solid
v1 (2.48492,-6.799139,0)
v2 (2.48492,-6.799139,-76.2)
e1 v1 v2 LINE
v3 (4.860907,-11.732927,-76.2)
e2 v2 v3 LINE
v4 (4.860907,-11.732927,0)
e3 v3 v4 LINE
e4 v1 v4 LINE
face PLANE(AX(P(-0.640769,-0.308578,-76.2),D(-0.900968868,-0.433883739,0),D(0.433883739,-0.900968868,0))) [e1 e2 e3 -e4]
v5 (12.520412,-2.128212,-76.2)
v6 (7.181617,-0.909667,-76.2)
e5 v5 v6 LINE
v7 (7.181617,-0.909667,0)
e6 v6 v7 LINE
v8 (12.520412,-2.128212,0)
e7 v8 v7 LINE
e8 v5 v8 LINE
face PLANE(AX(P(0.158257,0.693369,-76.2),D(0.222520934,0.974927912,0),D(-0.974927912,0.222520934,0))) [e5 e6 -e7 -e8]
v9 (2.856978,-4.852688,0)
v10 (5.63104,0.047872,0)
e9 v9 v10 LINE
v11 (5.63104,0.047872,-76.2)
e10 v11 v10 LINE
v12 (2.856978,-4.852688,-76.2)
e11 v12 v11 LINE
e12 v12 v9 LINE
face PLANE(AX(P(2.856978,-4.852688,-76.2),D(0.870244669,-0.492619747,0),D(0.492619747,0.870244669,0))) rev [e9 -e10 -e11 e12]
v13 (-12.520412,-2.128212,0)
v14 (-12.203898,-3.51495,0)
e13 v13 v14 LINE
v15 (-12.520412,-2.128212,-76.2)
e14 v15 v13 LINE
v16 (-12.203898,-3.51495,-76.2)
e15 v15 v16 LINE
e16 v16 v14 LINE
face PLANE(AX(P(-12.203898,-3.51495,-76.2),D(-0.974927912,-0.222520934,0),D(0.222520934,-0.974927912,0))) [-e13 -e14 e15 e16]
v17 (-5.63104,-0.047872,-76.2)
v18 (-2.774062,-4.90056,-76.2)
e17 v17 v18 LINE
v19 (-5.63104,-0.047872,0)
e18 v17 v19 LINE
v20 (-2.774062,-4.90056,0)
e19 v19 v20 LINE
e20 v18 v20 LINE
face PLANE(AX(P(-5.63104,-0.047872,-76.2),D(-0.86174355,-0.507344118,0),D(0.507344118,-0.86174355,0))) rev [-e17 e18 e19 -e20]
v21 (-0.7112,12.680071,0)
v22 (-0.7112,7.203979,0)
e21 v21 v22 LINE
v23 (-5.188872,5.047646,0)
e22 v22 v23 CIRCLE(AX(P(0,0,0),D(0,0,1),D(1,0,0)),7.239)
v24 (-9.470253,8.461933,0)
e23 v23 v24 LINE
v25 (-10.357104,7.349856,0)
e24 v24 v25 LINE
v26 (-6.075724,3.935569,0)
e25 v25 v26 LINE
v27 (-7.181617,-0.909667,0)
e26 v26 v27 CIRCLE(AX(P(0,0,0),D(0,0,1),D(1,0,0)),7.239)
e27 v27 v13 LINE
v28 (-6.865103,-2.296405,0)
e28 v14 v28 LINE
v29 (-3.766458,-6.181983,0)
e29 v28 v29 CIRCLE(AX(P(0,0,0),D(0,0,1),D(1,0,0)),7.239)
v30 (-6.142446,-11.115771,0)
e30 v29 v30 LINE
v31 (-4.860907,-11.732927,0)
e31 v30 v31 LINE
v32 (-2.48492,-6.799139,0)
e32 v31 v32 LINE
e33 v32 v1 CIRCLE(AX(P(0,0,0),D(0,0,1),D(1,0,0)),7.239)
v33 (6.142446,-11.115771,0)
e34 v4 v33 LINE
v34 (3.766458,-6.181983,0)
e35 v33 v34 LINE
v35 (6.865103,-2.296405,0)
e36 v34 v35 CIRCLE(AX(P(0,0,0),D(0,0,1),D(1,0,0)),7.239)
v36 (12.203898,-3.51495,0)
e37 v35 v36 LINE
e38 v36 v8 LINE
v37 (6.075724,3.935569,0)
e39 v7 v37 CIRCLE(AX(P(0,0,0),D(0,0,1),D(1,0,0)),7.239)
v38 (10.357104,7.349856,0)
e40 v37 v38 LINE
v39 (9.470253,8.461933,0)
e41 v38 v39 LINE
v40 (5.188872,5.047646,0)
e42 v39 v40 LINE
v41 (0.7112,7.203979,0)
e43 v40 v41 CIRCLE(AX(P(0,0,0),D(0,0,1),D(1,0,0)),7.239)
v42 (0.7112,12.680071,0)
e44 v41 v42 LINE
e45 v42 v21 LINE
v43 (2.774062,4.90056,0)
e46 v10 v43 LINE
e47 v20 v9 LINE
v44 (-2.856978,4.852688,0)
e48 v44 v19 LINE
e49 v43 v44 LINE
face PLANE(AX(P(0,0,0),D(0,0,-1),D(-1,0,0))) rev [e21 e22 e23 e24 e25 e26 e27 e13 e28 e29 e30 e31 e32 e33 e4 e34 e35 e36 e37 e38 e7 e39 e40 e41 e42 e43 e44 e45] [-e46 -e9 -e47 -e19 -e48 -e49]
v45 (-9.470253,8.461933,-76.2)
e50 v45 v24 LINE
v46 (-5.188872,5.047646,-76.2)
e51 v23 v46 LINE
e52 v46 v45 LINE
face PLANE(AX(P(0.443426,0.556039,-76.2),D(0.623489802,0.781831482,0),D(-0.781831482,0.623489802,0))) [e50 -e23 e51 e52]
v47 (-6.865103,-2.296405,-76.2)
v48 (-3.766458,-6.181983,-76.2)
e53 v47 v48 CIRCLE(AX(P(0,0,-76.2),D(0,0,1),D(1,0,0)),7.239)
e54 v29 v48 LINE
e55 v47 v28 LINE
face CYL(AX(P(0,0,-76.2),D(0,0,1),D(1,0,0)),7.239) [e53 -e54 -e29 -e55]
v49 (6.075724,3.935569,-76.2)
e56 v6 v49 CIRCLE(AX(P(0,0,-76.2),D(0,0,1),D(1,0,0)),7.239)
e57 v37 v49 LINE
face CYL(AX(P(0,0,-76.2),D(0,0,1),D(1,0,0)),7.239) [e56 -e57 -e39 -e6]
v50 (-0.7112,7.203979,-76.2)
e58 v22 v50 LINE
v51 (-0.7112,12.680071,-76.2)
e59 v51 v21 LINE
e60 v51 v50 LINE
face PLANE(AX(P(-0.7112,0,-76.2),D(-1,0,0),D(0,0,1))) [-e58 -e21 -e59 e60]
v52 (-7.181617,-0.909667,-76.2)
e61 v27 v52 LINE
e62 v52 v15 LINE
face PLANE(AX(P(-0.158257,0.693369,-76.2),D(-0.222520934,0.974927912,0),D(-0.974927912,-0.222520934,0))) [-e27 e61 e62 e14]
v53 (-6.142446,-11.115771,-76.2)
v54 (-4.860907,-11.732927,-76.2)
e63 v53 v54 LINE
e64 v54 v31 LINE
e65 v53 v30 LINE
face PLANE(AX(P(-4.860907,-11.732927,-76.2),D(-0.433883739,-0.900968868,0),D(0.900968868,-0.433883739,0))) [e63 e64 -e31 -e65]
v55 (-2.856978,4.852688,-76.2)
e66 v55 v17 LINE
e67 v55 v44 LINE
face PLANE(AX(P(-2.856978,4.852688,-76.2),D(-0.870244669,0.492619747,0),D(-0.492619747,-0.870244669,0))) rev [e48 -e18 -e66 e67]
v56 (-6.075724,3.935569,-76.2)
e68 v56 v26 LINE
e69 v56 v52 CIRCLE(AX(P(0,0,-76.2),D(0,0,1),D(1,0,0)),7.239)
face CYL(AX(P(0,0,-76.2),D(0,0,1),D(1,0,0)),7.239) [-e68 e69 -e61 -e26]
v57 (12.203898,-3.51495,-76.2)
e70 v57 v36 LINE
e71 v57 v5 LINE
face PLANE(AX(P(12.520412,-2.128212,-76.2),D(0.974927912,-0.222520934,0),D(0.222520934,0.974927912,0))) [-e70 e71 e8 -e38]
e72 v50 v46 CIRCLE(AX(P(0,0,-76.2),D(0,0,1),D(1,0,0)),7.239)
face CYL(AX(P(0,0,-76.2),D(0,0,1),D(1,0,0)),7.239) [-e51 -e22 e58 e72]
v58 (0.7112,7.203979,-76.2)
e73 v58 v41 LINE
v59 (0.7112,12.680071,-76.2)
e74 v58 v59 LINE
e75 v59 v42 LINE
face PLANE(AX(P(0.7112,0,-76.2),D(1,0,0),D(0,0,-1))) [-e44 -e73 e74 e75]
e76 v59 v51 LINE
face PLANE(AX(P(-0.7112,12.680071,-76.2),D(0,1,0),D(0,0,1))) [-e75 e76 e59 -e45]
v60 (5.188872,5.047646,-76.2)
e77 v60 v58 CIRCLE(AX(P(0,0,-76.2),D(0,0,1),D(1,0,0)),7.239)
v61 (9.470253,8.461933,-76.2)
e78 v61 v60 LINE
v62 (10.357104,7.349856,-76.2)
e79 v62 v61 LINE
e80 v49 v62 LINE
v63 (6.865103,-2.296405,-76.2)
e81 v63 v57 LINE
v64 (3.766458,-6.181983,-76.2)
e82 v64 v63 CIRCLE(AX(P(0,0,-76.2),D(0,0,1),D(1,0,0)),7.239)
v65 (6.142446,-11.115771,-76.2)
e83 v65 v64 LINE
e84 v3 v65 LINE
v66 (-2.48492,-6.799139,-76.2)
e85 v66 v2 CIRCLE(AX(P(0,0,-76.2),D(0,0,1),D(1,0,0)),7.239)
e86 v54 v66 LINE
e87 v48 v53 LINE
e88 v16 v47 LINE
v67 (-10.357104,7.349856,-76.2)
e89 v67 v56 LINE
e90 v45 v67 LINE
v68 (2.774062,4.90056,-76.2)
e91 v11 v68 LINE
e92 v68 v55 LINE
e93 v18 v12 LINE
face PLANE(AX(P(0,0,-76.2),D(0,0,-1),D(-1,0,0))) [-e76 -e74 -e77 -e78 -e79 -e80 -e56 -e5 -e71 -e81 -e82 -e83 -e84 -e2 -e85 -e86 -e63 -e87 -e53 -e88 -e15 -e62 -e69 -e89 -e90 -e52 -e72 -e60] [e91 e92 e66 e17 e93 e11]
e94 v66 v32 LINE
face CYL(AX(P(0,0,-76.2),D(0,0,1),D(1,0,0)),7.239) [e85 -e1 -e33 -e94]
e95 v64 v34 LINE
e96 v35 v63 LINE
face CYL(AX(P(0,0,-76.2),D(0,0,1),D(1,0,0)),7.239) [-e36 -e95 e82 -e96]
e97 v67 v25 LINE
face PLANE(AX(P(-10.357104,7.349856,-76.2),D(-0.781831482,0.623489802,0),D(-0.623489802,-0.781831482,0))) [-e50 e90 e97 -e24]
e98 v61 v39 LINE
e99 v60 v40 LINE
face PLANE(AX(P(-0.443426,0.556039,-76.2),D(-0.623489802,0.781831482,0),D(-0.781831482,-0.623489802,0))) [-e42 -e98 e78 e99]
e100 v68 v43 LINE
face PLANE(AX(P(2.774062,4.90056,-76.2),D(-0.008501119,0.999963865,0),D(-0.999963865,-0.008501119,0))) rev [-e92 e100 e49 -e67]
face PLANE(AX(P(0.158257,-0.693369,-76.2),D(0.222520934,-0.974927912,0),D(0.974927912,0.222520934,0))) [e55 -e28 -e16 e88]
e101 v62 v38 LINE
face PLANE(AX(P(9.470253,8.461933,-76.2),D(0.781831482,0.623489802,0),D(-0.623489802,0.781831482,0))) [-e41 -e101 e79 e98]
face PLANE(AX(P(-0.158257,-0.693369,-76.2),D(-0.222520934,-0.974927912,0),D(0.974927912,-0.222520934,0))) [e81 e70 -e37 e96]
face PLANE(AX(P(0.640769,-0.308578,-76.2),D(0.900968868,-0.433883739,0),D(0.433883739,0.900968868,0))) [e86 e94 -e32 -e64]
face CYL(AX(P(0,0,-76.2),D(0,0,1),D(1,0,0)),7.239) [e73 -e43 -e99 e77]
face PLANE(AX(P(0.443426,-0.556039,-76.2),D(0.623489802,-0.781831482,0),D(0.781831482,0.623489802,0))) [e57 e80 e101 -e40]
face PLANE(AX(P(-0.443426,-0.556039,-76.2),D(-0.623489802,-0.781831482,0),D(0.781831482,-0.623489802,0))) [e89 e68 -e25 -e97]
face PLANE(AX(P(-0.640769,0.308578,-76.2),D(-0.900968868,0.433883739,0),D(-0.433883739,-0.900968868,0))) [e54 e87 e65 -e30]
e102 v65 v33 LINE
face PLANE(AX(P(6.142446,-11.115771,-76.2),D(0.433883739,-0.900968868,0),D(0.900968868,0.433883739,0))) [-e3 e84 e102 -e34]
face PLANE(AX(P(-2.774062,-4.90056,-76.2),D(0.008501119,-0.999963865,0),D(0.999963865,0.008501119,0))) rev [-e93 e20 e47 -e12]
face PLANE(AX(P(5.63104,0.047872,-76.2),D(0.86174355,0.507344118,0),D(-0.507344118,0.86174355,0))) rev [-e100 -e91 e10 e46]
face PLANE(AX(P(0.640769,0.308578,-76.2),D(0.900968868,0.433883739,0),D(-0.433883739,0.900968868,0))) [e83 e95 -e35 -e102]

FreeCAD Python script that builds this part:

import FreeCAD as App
import Part
import Sketcher

V = App.Vector
Q = App.Units.Quantity


def add_polygon(sketch, points):
    """Adds a closed chain of lines whose ends are joined by coincident constraints."""
    first, n = sketch.GeometryCount, len(points)
    for a, b in zip(points, points[1:] + points[:1]):
        sketch.addGeometry(Part.LineSegment(App.Vector(*a, 0), App.Vector(*b, 0)), False)
    for i in range(n):
        sketch.addConstraint(Sketcher.Constraint("Coincident", first + i, 2, first + (i + 1) % n, 1))

doc = App.newDocument("Part")
body = doc.addObject("PartDesign::Body", "Body")

sketch1 = body.newObject("Sketcher::SketchObject", "Sketch")
sketch1.AttachmentSupport = (doc.getObject("XY_Plane"), [""])
sketch1.MapMode = "FlatFace"
add_polygon(sketch1, [(0.7, 0), (0.7, 12.7), (-0.7, 12.7), (-0.7, 0)])
sketch1.addConstraint(Sketcher.Constraint("Vertical", 0))
sketch1.addConstraint(Sketcher.Constraint("Horizontal", 1))
sketch1.addConstraint(Sketcher.Constraint("Vertical", 2))
sketch1.addConstraint(Sketcher.Constraint("Horizontal", 3))
sketch1.addConstraint(Sketcher.Constraint("Symmetric", 2, 2, 3, 2, -1, 1))
sketch1.addConstraint(Sketcher.Constraint("DistanceX", 1, 2, 1, 1, Q("0.056 in")))
sketch1.addConstraint(Sketcher.Constraint("DistanceY", 0, 1, 0, 2, Q("12.680071 mm")))
pad1 = body.newObject("PartDesign::Pad", "Pad")
pad1.Profile = sketch1
pad1.Length = Q("3 in")
pad1.Reversed = True

sketch2 = body.newObject("Sketcher::SketchObject", "Sketch001")
sketch2.AttachmentSupport = (doc.getObject("XY_Plane"), [""])
sketch2.MapMode = "FlatFace"
sketch2.addGeometry(Part.Circle(V(0, 0, 0), V(0, 0, 1), 7), False)
sketch2.addConstraint(Sketcher.Constraint("Coincident", 0, 3, -1, 1))
sketch2.addConstraint(Sketcher.Constraint("Diameter", 0, Q("0.57 in")))
pad2 = body.newObject("PartDesign::Pad", "Pad001")
pad2.Profile = sketch2
pad2.Length = Q("3 in")
pad2.Reversed = True
doc.recompute()

polarpattern = body.newObject("PartDesign::PolarPattern", "PolarPattern")
polarpattern.Originals = [pad1]
polarpattern.Axis = (doc.getObject("Z_Axis"), [""])
polarpattern.Angle = 360
polarpattern.Occurrences = 7
body.Tip = polarpattern

sketch3 = body.newObject("Sketcher::SketchObject", "Sketch002")
sketch3.AttachmentSupport = (doc.getObject("XY_Plane"), [""])
sketch3.MapMode = "FlatFace"
add_polygon(sketch3, [(6, 0), (3, 5), (-3, 5), (-6, 0), (-3, -5), (3, -5)])
sketch3.addConstraint(Sketcher.Constraint("Symmetric", 0, 2, 3, 2, -1, 1))
sketch3.addConstraint(Sketcher.Constraint("Symmetric", 1, 2, 4, 2, -1, 1))
sketch3.addConstraint(Sketcher.Constraint("Symmetric", 2, 2, 5, 2, -1, 1))
sketch3.addConstraint(Sketcher.Constraint("Equal", 0, 1))
sketch3.addConstraint(Sketcher.Constraint("Equal", 1, 2))
sketch3.addConstraint(Sketcher.Constraint("DistanceX", 2, 2, 0, 2, Q("8.405102 mm")))
sketch3.addConstraint(Sketcher.Constraint("DistanceX", -1, 1, 0, 2, Q("2.774062 mm")))
sketch3.addConstraint(Sketcher.Constraint("DistanceY", -1, 1, 0, 2, Q("4.90056 mm")))
sketch3.addConstraint(Sketcher.Constraint("DistanceX", 1, 2, -1, 1, Q("2.856978 mm")))
pocket1 = body.newObject("PartDesign::Pocket", "Pocket")
pocket1.Profile = sketch3
pocket1.Type = "ThroughAll"

doc.recompute()
